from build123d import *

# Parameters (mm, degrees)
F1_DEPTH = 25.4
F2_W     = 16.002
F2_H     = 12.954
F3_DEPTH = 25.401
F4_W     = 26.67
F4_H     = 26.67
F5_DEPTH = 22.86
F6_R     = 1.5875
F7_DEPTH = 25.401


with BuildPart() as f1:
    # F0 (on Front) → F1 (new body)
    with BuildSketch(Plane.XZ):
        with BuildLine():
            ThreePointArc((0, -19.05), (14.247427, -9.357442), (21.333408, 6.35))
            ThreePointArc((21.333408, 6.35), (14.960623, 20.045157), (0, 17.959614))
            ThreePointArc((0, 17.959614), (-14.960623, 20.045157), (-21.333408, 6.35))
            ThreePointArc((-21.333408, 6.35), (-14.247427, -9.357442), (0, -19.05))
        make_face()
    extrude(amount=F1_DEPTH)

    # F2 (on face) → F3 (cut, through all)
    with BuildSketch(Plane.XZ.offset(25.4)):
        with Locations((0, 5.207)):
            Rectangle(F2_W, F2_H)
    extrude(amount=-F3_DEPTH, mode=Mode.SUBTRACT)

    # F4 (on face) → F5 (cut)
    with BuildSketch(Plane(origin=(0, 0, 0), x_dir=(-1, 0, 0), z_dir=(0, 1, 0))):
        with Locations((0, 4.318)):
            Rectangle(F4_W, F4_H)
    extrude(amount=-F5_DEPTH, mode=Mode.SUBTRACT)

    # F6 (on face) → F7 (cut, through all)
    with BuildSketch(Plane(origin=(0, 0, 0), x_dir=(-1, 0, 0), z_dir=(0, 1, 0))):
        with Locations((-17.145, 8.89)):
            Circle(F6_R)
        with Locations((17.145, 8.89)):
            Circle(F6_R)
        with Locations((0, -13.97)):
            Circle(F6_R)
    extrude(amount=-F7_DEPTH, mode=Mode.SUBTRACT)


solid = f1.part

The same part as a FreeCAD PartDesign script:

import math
import FreeCAD as App
import Part
import Sketcher
from FreeCAD import Vector
Q = App.Units.Quantity


def add_polygon(sketch, points):
    """Adds a closed chain of lines whose ends are joined by coincident constraints."""
    first, n = sketch.GeometryCount, len(points)
    for a, b in zip(points, points[1:] + points[:1]):
        sketch.addGeometry(Part.LineSegment(App.Vector(*a, 0), App.Vector(*b, 0)), False)
    for i in range(n):
        sketch.addConstraint(Sketcher.Constraint("Coincident", first + i, 2, first + (i + 1) % n, 1))

doc = App.newDocument("Part")
body = doc.addObject("PartDesign::Body", "Body")

sketch1 = body.newObject("Sketcher::SketchObject", "Sketch")
sketch1.AttachmentSupport = (doc.getObject("XZ_Plane"), [""])
sketch1.MapMode = "FlatFace"
sketch1.addGeometry([
    Part.ArcOfCircle(Part.Circle(Vector(-10, 11, 0), Vector(0, 0, 1), 32), math.radians(-72), math.radians(-9)),
    Part.ArcOfCircle(Part.Circle(Vector(9, 9, 0), Vector(0, 0, 1), 13), math.radians(-12), math.radians(134)),
    Part.ArcOfCircle(Part.Circle(Vector(-9, 9, 0), Vector(0, 0, 1), 13), math.radians(46), math.radians(192)),
    Part.ArcOfCircle(Part.Circle(Vector(10, 11, 0), Vector(0, 0, 1), 32), math.radians(-171), math.radians(-108)),
], False)
sketch1.addConstraint([
    Sketcher.Constraint("Coincident", 0, 2, 1, 1),
    Sketcher.Constraint("Coincident", 1, 2, 2, 1),
    Sketcher.Constraint("Coincident", 2, 2, 3, 1),
    Sketcher.Constraint("Coincident", 3, 2, 0, 1),
    Sketcher.Constraint("Equal", 1, 2),
    Sketcher.Constraint("Equal", 0, 3),
    Sketcher.Constraint("Symmetric", 1, 3, 2, 3, -2),
    Sketcher.Constraint("Symmetric", 0, 3, 3, 3, -2),
    Sketcher.Constraint("Radius", 1, Q("0.5 in")),
    Sketcher.Constraint("Radius", 0, Q("1.2499999 in")),
    Sketcher.Constraint("DistanceY", 3, 2, 0, 2, Q("1 in")),
    Sketcher.Constraint("DistanceX", 2, 3, 1, 3, Q("0.7 in")),
    Sketcher.Constraint("DistanceY", 0, 2, 1, 3, Q("0.1 in")),
    Sketcher.Constraint("DistanceY", -1, 1, 1, 3, Q("0.35 in")),
])
pad1 = body.newObject("PartDesign::Pad", "Pad")
pad1.Profile = sketch1
pad1.Length = Q("1 in")

sketch2 = body.newObject("Sketcher::SketchObject", "Sketch001")
sketch2.AttachmentSupport = (doc.getObject("XZ_Plane"), [""])
sketch2.MapMode = "FlatFace"
sketch2.AttachmentOffset = App.Placement(Vector(0, 0, 1 * 25.4), App.Rotation())
add_polygon(sketch2, [(-8, 12), (-8, -1), (8, -1), (8, 12)])
sketch2.addConstraint([
    Sketcher.Constraint("Vertical", 0),
    Sketcher.Constraint("Horizontal", 1),
    Sketcher.Constraint("Vertical", 2),
    Sketcher.Constraint("Horizontal", 3),
    Sketcher.Constraint("DistanceX", 1, 1, 1, 2, Q("0.63 in")),
    Sketcher.Constraint("DistanceY", 0, 2, 0, 1, Q("0.51 in")),
    Sketcher.Constraint("DistanceY", 0, 2, -1, 1, Q("0.05 in")),
    Sketcher.Constraint("DistanceX", 0, 2, -1, 1, Q("0.315 in")),
])
pocket1 = body.newObject("PartDesign::Pocket", "Pocket")
pocket1.Profile = sketch2
pocket1.Type = "ThroughAll"

sketch3 = body.newObject("Sketcher::SketchObject", "Sketch002")
sketch3.AttachmentSupport = (doc.getObject("XZ_Plane"), [""])
sketch3.MapMode = "FlatFace"
add_polygon(sketch3, [(13, 18), (13, -9), (-13, -9), (-13, 18)])
sketch3.addConstraint([
    Sketcher.Constraint("Vertical", 0),
    Sketcher.Constraint("Horizontal", 1),
    Sketcher.Constraint("Vertical", 2),
    Sketcher.Constraint("Horizontal", 3),
    Sketcher.Constraint("Equal", 3, 0),
    Sketcher.Constraint("DistanceX", 1, 2, 1, 1, Q("1.05 in")),
    Sketcher.Constraint("DistanceX", -1, 1, 0, 2, Q("0.525 in")),
    Sketcher.Constraint("DistanceY", 0, 2, -1, 1, Q("0.355 in")),
])
pocket2 = body.newObject("PartDesign::Pocket", "Pocket001")
pocket2.Profile = sketch3
pocket2.Length = Q("0.9 in")
pocket2.Reversed = True

sketch4 = body.newObject("Sketcher::SketchObject", "Sketch003")
sketch4.AttachmentSupport = (doc.getObject("XZ_Plane"), [""])
sketch4.MapMode = "FlatFace"
sketch4.addGeometry([
    Part.Circle(Vector(17.1, 8.9, 0), Vector(0, 0, 1), 1.6),
    Part.Circle(Vector(-17.1, 8.9, 0), Vector(0, 0, 1), 1.6),
    Part.Circle(Vector(0, -14, 0), Vector(0, 0, 1), 1.6),
], False)
sketch4.addConstraint([
    Sketcher.Constraint("Equal", 0, 1),
    Sketcher.Constraint("Equal", 1, 2),
    Sketcher.Constraint("Symmetric", 0, 3, 1, 3, -2),
    Sketcher.Constraint("PointOnObject", 2, 3, -2),
    Sketcher.Constraint("Diameter", 0, Q("0.125 in")),
    Sketcher.Constraint("DistanceY", 2, 3, 0, 3, Q("0.9 in")),
    Sketcher.Constraint("DistanceY", -1, 1, 0, 3, Q("0.35 in")),
    Sketcher.Constraint("DistanceX", 1, 3, 0, 3, Q("1.35 in")),
])
pocket3 = body.newObject("PartDesign::Pocket", "Pocket002")
pocket3.Profile = sketch4
pocket3.Type = "ThroughAll"
pocket3.Reversed = True

doc.recompute()
